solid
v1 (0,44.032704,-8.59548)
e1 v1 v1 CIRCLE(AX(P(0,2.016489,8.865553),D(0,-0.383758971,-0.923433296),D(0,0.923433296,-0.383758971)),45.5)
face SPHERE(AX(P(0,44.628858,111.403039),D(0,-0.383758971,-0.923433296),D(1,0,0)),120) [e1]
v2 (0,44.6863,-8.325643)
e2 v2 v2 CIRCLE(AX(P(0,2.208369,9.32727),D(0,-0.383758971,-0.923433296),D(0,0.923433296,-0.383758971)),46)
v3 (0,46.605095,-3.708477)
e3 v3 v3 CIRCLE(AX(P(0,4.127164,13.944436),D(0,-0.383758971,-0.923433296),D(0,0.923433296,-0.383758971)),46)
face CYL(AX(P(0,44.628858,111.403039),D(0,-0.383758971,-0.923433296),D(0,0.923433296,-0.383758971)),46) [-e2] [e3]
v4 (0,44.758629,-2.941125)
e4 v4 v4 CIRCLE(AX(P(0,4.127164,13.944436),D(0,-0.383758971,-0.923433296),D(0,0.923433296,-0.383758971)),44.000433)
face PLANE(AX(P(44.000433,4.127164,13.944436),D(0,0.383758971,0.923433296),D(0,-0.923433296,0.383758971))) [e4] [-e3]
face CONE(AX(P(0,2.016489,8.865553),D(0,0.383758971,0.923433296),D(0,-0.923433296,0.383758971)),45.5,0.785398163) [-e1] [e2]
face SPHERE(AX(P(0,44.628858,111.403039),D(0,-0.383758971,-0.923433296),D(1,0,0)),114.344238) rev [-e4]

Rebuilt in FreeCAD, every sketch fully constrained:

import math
import FreeCAD as App
import Part
import Sketcher
Q = App.Units.Quantity

doc = App.newDocument("Part")
body = doc.addObject("PartDesign::Body", "Body")

# Sketch on an angled plane
sketch1 = body.newObject("Sketcher::SketchObject", "Sketch")
sketch1.Placement = App.Placement(App.Vector(0, -1.422219, 0.591043), App.Rotation(App.Vector(1, 0, 0), App.Vector(0, 0.383758971, 0.923433296), App.Vector(0, -0.923433296, 0.383758971), "ZXY"))
sketch1.addGeometry(Part.LineSegment(App.Vector(0, 5.7, 0), App.Vector(0, 0, 0)), False)
sketch1.addGeometry(Part.ArcOfCircle(Part.Circle(App.Vector(0, 120, 0), App.Vector(0, 0, 1), 120), math.radians(-90), math.radians(-68)), False)
sketch1.addGeometry(Part.LineSegment(App.Vector(45.5, 9, 0), App.Vector(46, 9.5, 0)), False)
sketch1.addGeometry(Part.LineSegment(App.Vector(46, 9.5, 0), App.Vector(46, 14.5, 0)), False)
sketch1.addGeometry(Part.LineSegment(App.Vector(46, 14.5, 0), App.Vector(44, 14.5, 0)), False)
sketch1.addGeometry(Part.ArcOfCircle(Part.Circle(App.Vector(0, 120, 0), App.Vector(0, 0, 1), 114.3), math.radians(-90), math.radians(-67)), False)
sketch1.addConstraint(Sketcher.Constraint("Coincident", 0, 2, 1, 1))
sketch1.addConstraint(Sketcher.Constraint("Coincident", 1, 2, 2, 1))
sketch1.addConstraint(Sketcher.Constraint("Coincident", 2, 2, 3, 1))
sketch1.addConstraint(Sketcher.Constraint("Coincident", 3, 2, 4, 1))
sketch1.addConstraint(Sketcher.Constraint("Coincident", 4, 2, 5, 2))
sketch1.addConstraint(Sketcher.Constraint("Coincident", 5, 1, 0, 1))
sketch1.addConstraint(Sketcher.Constraint("Vertical", 0))
sketch1.addConstraint(Sketcher.Constraint("Vertical", 3))
sketch1.addConstraint(Sketcher.Constraint("Horizontal", 4))
sketch1.addConstraint(Sketcher.Constraint("Coincident", 0, 2, -1, 1))
sketch1.addConstraint(Sketcher.Constraint("Coincident", 5, 3, 1, 3))
sketch1.addConstraint(Sketcher.Constraint("PointOnObject", 1, 3, -2))
sketch1.addConstraint(Sketcher.Constraint("Radius", 1, 120.0))
sketch1.addConstraint(Sketcher.Constraint("DistanceY", 3, 1, 3, 2, 5.0))
sketch1.addConstraint(Sketcher.Constraint("Angle", 2, Q("45 deg")))
sketch1.addConstraint(Sketcher.Constraint("DistanceX", -1, 1, 2, 2, 46.0))
sketch1.addConstraint(Sketcher.Constraint("DistanceX", -1, 1, 1, 2, 45.5))
sketch1.addConstraint(Sketcher.Constraint("Radius", 5, 114.344238))
revolution = body.newObject("PartDesign::Revolution", "Revolution")
revolution.Profile = sketch1
revolution.ReferenceAxis = (sketch1, ["V_Axis"])
revolution.Angle = 360

doc.recompute()
